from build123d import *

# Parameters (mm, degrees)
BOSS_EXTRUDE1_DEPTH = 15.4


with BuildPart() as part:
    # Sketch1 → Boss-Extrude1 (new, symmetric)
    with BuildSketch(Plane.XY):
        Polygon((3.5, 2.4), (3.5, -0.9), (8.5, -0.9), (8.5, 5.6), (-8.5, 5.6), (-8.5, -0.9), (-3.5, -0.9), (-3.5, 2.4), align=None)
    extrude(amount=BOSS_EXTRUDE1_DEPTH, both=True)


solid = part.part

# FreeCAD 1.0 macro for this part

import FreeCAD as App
import Part
import Sketcher
from FreeCAD import Vector


def add_polygon(sketch, points):
    """Adds a closed chain of lines whose ends are joined by coincident constraints."""
    first, n = sketch.GeometryCount, len(points)
    for a, b in zip(points, points[1:] + points[:1]):
        sketch.addGeometry(Part.LineSegment(App.Vector(*a, 0), App.Vector(*b, 0)), False)
    for i in range(n):
        sketch.addConstraint(Sketcher.Constraint("Coincident", first + i, 2, first + (i + 1) % n, 1))

doc = App.newDocument("Part")
body = doc.addObject("PartDesign::Body", "Body")

sketch1 = body.newObject("Sketcher::SketchObject", "Sketch")
sketch1.AttachmentSupport = (doc.getObject("XY_Plane"), [""])
sketch1.MapMode = "FlatFace"
add_polygon(sketch1, [(3.5, 2.4), (3.5, -0.9), (8.5, -0.9), (8.5, 5.6), (-8.5, 5.6), (-8.5, -0.9), (-3.5, -0.9), (-3.5, 2.4)])
sketch1.addConstraint([
    Sketcher.Constraint("Vertical", 0),
    Sketcher.Constraint("Horizontal", 1),
    Sketcher.Constraint("Vertical", 2),
    Sketcher.Constraint("Horizontal", 3),
    Sketcher.Constraint("Vertical", 4),
    Sketcher.Constraint("Horizontal", 5),
    Sketcher.Constraint("Vertical", 6),
    Sketcher.Constraint("Horizontal", 7),
    Sketcher.Constraint("Symmetric", 1, 2, 4, 2, -2),
    Sketcher.Constraint("Equal", 1, 5),
    Sketcher.Constraint("DistanceX", 1, 1, 1, 2, 5.0),
    Sketcher.Constraint("DistanceX", 3, 2, 3, 1, 17.0),
    Sketcher.Constraint("DistanceY", 0, 2, 0, 1, 3.3),
    Sketcher.Constraint("DistanceY", 2, 1, 2, 2, 6.5),
    Sketcher.Constraint("DistanceY", 0, 2, -1, 1, 0.9),
])
pad1 = body.newObject("PartDesign::Pad", "Pad")
pad1.Profile = sketch1
pad1.Length = 30.8
pad1.Midplane = True

doc.recompute()
